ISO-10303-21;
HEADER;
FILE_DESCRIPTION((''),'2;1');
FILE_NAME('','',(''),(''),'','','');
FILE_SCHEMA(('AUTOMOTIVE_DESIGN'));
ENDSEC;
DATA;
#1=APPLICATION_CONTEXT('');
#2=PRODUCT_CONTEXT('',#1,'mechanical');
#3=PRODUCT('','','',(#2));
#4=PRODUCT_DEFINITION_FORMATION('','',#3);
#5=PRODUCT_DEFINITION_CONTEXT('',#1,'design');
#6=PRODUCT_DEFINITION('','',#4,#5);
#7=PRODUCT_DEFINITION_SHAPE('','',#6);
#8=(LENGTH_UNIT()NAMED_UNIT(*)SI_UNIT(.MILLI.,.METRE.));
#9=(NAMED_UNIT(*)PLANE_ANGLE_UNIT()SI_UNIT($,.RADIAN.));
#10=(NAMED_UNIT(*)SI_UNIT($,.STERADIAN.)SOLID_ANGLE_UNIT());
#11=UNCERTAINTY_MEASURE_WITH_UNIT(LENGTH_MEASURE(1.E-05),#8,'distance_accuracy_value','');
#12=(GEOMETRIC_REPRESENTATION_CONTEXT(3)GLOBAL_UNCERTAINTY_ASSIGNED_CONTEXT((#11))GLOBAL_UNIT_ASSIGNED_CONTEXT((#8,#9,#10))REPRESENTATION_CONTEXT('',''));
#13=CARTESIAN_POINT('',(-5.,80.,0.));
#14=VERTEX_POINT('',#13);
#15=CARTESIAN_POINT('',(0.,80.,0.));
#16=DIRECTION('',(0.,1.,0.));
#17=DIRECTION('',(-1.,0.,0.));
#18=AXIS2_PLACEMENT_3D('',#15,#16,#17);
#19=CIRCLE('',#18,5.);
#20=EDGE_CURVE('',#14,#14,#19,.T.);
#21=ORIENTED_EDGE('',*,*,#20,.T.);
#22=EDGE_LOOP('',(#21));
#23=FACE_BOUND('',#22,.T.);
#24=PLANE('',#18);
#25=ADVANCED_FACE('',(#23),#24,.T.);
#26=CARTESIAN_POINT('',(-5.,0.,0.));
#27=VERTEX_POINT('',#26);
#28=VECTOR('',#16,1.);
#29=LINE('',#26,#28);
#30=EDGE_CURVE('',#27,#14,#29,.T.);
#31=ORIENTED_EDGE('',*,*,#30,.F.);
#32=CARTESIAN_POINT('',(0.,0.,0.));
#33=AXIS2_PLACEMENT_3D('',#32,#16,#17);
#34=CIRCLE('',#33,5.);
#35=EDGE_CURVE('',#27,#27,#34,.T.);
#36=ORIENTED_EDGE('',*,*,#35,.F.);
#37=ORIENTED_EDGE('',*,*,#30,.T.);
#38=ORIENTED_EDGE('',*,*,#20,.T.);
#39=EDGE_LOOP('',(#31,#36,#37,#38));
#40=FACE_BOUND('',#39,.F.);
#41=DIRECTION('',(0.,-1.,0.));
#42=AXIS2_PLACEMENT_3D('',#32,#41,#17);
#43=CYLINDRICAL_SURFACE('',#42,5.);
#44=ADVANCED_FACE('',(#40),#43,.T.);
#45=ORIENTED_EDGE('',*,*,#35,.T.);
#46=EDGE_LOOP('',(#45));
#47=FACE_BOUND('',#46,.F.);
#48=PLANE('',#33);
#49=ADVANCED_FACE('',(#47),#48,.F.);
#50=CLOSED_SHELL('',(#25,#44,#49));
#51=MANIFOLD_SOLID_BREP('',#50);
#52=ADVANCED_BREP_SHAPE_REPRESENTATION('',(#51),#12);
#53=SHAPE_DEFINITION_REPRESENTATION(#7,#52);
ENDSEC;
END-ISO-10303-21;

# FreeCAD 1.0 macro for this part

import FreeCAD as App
import Part
import Sketcher
from FreeCAD import Vector

doc = App.newDocument("Part")
params = doc.addObject("Spreadsheet::Sheet", "Params")
for row, (alias, value) in enumerate([
    ("sketch1_diameter", "10 mm"),
    ("pad1_length", "80 mm"),
], start=1):
    params.set(f"A{row}", alias)
    params.set(f"B{row}", "=" + value)
    params.setAlias(f"B{row}", alias)

body = doc.addObject("PartDesign::Body", "Body")

# Sketch on XZ plane
sketch1 = doc.addObject("Sketcher::SketchObject", "Sketch")
body.addObject(sketch1)
sketch1.AttachmentSupport = (doc.XZ_Plane, [""])
sketch1.MapMode = "FlatFace"
sketch1.addGeometry(Part.Circle(Vector(0, 0, 0), Vector(0, 0, 1), 5), False)
sketch1.addConstraint([
    Sketcher.Constraint("Coincident", 0, 3, -1, 1),
    Sketcher.Constraint("Diameter", 0, 10.0),
])
sketch1.setExpression("Constraints[1]", "Params.sketch1_diameter")
pad1 = doc.addObject("PartDesign::Pad", "Pad")
body.addObject(pad1)
pad1.Profile = sketch1
pad1.setExpression("Length", "Params.pad1_length")
pad1.Reversed = True

doc.recompute()
